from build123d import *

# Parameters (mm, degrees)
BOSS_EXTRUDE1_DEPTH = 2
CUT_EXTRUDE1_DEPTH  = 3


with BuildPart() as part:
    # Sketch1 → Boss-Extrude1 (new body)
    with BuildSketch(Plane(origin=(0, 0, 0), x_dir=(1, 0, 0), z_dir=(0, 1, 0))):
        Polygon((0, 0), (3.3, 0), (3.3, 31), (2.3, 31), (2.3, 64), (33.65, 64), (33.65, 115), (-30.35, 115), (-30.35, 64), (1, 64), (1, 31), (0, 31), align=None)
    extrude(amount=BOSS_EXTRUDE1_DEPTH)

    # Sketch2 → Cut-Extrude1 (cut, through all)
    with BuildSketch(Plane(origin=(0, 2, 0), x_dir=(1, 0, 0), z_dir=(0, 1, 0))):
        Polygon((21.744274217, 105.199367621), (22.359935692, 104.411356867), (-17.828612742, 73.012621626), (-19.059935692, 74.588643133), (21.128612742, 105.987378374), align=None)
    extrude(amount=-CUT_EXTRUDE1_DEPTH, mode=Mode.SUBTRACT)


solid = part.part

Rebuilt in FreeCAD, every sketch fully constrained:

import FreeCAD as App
import Part
import Sketcher
Q = App.Units.Quantity


def add_polygon(sketch, points):
    """Adds a closed chain of lines whose ends are joined by coincident constraints."""
    first, n = sketch.GeometryCount, len(points)
    for a, b in zip(points, points[1:] + points[:1]):
        sketch.addGeometry(Part.LineSegment(App.Vector(*a, 0), App.Vector(*b, 0)), False)
    for i in range(n):
        sketch.addConstraint(Sketcher.Constraint("Coincident", first + i, 2, first + (i + 1) % n, 1))

doc = App.newDocument("Part")
body = doc.addObject("PartDesign::Body", "Body")

sketch1 = body.newObject("Sketcher::SketchObject", "Sketch")
sketch1.AttachmentSupport = (doc.getObject("XZ_Plane"), [""])
sketch1.MapMode = "FlatFace"
add_polygon(sketch1, [(0, 0), (3.3, 0), (3.3, -31), (2.3, -31), (2.3, -64), (33.6, -64), (33.6, -115), (-30.4, -115), (-30.4, -64), (1, -64), (1, -31), (0, -31)])
sketch1.addConstraint(Sketcher.Constraint("Horizontal", 0))
sketch1.addConstraint(Sketcher.Constraint("Vertical", 1))
sketch1.addConstraint(Sketcher.Constraint("Horizontal", 2))
sketch1.addConstraint(Sketcher.Constraint("Vertical", 3))
sketch1.addConstraint(Sketcher.Constraint("Horizontal", 4))
sketch1.addConstraint(Sketcher.Constraint("Vertical", 5))
sketch1.addConstraint(Sketcher.Constraint("Horizontal", 6))
sketch1.addConstraint(Sketcher.Constraint("Vertical", 7))
sketch1.addConstraint(Sketcher.Constraint("Horizontal", 8))
sketch1.addConstraint(Sketcher.Constraint("Vertical", 9))
sketch1.addConstraint(Sketcher.Constraint("Horizontal", 10))
sketch1.addConstraint(Sketcher.Constraint("Vertical", 11))
sketch1.addConstraint(Sketcher.Constraint("Coincident", 11, 2, -1, 1))
sketch1.addConstraint(Sketcher.Constraint("Horizontal", 4, 2, 7, 2))
sketch1.addConstraint(Sketcher.Constraint("Horizontal", 2, 2, 9, 2))
sketch1.addConstraint(Sketcher.Constraint("Equal", 4, 8))
sketch1.addConstraint(Sketcher.Constraint("Equal", 2, 10))
sketch1.addConstraint(Sketcher.Constraint("DistanceX", 2, 2, 2, 1, Q("1 mm")))
sketch1.addConstraint(Sketcher.Constraint("DistanceX", 6, 2, 6, 1, Q("64 mm")))
sketch1.addConstraint(Sketcher.Constraint("DistanceY", 1, 2, 1, 1, Q("31 mm")))
sketch1.addConstraint(Sketcher.Constraint("DistanceY", 3, 2, 3, 1, Q("33 mm")))
sketch1.addConstraint(Sketcher.Constraint("DistanceY", 5, 2, 5, 1, Q("51 mm")))
sketch1.addConstraint(Sketcher.Constraint("DistanceX", 0, 1, 0, 2, Q("3.3 mm")))
pad1 = body.newObject("PartDesign::Pad", "Pad")
pad1.Profile = sketch1
pad1.Length = 2
pad1.Reversed = True

sketch2 = body.newObject("Sketcher::SketchObject", "Sketch001")
sketch2.AttachmentSupport = (doc.getObject("XZ_Plane"), [""])
sketch2.MapMode = "FlatFace"
sketch2.AttachmentOffset = App.Placement(App.Vector(0, 0, -2), App.Rotation())
add_polygon(sketch2, [(22.4, -104.4), (21.7, -105.2), (21.1, -106), (-19.1, -74.6), (-17.8, -73)])
sketch2.addConstraint(Sketcher.Constraint("Parallel", 0, 1))
sketch2.addConstraint(Sketcher.Constraint("Perpendicular", 1, 2))
sketch2.addConstraint(Sketcher.Constraint("Perpendicular", 2, 3))
sketch2.addConstraint(Sketcher.Constraint("Perpendicular", 3, 4))
sketch2.addConstraint(Sketcher.Constraint("Equal", 0, 1))
sketch2.addConstraint(Sketcher.Constraint("Angle", 0, Q("-128 deg")))
sketch2.addConstraint(Sketcher.Constraint("Distance", 0, Q("1 mm")))
sketch2.addConstraint(Sketcher.Constraint("Distance", 2, Q("51 mm")))
sketch2.addConstraint(Sketcher.Constraint("DistanceY", 1, 2, -1, 1, Q("105.987378 mm")))
sketch2.addConstraint(Sketcher.Constraint("DistanceX", -1, 1, 0, 2, Q("21.744274 mm")))
pocket1 = body.newObject("PartDesign::Pocket", "Pocket")
pocket1.Profile = sketch2
pocket1.Type = "ThroughAll"
pocket1.Reversed = True

doc.recompute()
